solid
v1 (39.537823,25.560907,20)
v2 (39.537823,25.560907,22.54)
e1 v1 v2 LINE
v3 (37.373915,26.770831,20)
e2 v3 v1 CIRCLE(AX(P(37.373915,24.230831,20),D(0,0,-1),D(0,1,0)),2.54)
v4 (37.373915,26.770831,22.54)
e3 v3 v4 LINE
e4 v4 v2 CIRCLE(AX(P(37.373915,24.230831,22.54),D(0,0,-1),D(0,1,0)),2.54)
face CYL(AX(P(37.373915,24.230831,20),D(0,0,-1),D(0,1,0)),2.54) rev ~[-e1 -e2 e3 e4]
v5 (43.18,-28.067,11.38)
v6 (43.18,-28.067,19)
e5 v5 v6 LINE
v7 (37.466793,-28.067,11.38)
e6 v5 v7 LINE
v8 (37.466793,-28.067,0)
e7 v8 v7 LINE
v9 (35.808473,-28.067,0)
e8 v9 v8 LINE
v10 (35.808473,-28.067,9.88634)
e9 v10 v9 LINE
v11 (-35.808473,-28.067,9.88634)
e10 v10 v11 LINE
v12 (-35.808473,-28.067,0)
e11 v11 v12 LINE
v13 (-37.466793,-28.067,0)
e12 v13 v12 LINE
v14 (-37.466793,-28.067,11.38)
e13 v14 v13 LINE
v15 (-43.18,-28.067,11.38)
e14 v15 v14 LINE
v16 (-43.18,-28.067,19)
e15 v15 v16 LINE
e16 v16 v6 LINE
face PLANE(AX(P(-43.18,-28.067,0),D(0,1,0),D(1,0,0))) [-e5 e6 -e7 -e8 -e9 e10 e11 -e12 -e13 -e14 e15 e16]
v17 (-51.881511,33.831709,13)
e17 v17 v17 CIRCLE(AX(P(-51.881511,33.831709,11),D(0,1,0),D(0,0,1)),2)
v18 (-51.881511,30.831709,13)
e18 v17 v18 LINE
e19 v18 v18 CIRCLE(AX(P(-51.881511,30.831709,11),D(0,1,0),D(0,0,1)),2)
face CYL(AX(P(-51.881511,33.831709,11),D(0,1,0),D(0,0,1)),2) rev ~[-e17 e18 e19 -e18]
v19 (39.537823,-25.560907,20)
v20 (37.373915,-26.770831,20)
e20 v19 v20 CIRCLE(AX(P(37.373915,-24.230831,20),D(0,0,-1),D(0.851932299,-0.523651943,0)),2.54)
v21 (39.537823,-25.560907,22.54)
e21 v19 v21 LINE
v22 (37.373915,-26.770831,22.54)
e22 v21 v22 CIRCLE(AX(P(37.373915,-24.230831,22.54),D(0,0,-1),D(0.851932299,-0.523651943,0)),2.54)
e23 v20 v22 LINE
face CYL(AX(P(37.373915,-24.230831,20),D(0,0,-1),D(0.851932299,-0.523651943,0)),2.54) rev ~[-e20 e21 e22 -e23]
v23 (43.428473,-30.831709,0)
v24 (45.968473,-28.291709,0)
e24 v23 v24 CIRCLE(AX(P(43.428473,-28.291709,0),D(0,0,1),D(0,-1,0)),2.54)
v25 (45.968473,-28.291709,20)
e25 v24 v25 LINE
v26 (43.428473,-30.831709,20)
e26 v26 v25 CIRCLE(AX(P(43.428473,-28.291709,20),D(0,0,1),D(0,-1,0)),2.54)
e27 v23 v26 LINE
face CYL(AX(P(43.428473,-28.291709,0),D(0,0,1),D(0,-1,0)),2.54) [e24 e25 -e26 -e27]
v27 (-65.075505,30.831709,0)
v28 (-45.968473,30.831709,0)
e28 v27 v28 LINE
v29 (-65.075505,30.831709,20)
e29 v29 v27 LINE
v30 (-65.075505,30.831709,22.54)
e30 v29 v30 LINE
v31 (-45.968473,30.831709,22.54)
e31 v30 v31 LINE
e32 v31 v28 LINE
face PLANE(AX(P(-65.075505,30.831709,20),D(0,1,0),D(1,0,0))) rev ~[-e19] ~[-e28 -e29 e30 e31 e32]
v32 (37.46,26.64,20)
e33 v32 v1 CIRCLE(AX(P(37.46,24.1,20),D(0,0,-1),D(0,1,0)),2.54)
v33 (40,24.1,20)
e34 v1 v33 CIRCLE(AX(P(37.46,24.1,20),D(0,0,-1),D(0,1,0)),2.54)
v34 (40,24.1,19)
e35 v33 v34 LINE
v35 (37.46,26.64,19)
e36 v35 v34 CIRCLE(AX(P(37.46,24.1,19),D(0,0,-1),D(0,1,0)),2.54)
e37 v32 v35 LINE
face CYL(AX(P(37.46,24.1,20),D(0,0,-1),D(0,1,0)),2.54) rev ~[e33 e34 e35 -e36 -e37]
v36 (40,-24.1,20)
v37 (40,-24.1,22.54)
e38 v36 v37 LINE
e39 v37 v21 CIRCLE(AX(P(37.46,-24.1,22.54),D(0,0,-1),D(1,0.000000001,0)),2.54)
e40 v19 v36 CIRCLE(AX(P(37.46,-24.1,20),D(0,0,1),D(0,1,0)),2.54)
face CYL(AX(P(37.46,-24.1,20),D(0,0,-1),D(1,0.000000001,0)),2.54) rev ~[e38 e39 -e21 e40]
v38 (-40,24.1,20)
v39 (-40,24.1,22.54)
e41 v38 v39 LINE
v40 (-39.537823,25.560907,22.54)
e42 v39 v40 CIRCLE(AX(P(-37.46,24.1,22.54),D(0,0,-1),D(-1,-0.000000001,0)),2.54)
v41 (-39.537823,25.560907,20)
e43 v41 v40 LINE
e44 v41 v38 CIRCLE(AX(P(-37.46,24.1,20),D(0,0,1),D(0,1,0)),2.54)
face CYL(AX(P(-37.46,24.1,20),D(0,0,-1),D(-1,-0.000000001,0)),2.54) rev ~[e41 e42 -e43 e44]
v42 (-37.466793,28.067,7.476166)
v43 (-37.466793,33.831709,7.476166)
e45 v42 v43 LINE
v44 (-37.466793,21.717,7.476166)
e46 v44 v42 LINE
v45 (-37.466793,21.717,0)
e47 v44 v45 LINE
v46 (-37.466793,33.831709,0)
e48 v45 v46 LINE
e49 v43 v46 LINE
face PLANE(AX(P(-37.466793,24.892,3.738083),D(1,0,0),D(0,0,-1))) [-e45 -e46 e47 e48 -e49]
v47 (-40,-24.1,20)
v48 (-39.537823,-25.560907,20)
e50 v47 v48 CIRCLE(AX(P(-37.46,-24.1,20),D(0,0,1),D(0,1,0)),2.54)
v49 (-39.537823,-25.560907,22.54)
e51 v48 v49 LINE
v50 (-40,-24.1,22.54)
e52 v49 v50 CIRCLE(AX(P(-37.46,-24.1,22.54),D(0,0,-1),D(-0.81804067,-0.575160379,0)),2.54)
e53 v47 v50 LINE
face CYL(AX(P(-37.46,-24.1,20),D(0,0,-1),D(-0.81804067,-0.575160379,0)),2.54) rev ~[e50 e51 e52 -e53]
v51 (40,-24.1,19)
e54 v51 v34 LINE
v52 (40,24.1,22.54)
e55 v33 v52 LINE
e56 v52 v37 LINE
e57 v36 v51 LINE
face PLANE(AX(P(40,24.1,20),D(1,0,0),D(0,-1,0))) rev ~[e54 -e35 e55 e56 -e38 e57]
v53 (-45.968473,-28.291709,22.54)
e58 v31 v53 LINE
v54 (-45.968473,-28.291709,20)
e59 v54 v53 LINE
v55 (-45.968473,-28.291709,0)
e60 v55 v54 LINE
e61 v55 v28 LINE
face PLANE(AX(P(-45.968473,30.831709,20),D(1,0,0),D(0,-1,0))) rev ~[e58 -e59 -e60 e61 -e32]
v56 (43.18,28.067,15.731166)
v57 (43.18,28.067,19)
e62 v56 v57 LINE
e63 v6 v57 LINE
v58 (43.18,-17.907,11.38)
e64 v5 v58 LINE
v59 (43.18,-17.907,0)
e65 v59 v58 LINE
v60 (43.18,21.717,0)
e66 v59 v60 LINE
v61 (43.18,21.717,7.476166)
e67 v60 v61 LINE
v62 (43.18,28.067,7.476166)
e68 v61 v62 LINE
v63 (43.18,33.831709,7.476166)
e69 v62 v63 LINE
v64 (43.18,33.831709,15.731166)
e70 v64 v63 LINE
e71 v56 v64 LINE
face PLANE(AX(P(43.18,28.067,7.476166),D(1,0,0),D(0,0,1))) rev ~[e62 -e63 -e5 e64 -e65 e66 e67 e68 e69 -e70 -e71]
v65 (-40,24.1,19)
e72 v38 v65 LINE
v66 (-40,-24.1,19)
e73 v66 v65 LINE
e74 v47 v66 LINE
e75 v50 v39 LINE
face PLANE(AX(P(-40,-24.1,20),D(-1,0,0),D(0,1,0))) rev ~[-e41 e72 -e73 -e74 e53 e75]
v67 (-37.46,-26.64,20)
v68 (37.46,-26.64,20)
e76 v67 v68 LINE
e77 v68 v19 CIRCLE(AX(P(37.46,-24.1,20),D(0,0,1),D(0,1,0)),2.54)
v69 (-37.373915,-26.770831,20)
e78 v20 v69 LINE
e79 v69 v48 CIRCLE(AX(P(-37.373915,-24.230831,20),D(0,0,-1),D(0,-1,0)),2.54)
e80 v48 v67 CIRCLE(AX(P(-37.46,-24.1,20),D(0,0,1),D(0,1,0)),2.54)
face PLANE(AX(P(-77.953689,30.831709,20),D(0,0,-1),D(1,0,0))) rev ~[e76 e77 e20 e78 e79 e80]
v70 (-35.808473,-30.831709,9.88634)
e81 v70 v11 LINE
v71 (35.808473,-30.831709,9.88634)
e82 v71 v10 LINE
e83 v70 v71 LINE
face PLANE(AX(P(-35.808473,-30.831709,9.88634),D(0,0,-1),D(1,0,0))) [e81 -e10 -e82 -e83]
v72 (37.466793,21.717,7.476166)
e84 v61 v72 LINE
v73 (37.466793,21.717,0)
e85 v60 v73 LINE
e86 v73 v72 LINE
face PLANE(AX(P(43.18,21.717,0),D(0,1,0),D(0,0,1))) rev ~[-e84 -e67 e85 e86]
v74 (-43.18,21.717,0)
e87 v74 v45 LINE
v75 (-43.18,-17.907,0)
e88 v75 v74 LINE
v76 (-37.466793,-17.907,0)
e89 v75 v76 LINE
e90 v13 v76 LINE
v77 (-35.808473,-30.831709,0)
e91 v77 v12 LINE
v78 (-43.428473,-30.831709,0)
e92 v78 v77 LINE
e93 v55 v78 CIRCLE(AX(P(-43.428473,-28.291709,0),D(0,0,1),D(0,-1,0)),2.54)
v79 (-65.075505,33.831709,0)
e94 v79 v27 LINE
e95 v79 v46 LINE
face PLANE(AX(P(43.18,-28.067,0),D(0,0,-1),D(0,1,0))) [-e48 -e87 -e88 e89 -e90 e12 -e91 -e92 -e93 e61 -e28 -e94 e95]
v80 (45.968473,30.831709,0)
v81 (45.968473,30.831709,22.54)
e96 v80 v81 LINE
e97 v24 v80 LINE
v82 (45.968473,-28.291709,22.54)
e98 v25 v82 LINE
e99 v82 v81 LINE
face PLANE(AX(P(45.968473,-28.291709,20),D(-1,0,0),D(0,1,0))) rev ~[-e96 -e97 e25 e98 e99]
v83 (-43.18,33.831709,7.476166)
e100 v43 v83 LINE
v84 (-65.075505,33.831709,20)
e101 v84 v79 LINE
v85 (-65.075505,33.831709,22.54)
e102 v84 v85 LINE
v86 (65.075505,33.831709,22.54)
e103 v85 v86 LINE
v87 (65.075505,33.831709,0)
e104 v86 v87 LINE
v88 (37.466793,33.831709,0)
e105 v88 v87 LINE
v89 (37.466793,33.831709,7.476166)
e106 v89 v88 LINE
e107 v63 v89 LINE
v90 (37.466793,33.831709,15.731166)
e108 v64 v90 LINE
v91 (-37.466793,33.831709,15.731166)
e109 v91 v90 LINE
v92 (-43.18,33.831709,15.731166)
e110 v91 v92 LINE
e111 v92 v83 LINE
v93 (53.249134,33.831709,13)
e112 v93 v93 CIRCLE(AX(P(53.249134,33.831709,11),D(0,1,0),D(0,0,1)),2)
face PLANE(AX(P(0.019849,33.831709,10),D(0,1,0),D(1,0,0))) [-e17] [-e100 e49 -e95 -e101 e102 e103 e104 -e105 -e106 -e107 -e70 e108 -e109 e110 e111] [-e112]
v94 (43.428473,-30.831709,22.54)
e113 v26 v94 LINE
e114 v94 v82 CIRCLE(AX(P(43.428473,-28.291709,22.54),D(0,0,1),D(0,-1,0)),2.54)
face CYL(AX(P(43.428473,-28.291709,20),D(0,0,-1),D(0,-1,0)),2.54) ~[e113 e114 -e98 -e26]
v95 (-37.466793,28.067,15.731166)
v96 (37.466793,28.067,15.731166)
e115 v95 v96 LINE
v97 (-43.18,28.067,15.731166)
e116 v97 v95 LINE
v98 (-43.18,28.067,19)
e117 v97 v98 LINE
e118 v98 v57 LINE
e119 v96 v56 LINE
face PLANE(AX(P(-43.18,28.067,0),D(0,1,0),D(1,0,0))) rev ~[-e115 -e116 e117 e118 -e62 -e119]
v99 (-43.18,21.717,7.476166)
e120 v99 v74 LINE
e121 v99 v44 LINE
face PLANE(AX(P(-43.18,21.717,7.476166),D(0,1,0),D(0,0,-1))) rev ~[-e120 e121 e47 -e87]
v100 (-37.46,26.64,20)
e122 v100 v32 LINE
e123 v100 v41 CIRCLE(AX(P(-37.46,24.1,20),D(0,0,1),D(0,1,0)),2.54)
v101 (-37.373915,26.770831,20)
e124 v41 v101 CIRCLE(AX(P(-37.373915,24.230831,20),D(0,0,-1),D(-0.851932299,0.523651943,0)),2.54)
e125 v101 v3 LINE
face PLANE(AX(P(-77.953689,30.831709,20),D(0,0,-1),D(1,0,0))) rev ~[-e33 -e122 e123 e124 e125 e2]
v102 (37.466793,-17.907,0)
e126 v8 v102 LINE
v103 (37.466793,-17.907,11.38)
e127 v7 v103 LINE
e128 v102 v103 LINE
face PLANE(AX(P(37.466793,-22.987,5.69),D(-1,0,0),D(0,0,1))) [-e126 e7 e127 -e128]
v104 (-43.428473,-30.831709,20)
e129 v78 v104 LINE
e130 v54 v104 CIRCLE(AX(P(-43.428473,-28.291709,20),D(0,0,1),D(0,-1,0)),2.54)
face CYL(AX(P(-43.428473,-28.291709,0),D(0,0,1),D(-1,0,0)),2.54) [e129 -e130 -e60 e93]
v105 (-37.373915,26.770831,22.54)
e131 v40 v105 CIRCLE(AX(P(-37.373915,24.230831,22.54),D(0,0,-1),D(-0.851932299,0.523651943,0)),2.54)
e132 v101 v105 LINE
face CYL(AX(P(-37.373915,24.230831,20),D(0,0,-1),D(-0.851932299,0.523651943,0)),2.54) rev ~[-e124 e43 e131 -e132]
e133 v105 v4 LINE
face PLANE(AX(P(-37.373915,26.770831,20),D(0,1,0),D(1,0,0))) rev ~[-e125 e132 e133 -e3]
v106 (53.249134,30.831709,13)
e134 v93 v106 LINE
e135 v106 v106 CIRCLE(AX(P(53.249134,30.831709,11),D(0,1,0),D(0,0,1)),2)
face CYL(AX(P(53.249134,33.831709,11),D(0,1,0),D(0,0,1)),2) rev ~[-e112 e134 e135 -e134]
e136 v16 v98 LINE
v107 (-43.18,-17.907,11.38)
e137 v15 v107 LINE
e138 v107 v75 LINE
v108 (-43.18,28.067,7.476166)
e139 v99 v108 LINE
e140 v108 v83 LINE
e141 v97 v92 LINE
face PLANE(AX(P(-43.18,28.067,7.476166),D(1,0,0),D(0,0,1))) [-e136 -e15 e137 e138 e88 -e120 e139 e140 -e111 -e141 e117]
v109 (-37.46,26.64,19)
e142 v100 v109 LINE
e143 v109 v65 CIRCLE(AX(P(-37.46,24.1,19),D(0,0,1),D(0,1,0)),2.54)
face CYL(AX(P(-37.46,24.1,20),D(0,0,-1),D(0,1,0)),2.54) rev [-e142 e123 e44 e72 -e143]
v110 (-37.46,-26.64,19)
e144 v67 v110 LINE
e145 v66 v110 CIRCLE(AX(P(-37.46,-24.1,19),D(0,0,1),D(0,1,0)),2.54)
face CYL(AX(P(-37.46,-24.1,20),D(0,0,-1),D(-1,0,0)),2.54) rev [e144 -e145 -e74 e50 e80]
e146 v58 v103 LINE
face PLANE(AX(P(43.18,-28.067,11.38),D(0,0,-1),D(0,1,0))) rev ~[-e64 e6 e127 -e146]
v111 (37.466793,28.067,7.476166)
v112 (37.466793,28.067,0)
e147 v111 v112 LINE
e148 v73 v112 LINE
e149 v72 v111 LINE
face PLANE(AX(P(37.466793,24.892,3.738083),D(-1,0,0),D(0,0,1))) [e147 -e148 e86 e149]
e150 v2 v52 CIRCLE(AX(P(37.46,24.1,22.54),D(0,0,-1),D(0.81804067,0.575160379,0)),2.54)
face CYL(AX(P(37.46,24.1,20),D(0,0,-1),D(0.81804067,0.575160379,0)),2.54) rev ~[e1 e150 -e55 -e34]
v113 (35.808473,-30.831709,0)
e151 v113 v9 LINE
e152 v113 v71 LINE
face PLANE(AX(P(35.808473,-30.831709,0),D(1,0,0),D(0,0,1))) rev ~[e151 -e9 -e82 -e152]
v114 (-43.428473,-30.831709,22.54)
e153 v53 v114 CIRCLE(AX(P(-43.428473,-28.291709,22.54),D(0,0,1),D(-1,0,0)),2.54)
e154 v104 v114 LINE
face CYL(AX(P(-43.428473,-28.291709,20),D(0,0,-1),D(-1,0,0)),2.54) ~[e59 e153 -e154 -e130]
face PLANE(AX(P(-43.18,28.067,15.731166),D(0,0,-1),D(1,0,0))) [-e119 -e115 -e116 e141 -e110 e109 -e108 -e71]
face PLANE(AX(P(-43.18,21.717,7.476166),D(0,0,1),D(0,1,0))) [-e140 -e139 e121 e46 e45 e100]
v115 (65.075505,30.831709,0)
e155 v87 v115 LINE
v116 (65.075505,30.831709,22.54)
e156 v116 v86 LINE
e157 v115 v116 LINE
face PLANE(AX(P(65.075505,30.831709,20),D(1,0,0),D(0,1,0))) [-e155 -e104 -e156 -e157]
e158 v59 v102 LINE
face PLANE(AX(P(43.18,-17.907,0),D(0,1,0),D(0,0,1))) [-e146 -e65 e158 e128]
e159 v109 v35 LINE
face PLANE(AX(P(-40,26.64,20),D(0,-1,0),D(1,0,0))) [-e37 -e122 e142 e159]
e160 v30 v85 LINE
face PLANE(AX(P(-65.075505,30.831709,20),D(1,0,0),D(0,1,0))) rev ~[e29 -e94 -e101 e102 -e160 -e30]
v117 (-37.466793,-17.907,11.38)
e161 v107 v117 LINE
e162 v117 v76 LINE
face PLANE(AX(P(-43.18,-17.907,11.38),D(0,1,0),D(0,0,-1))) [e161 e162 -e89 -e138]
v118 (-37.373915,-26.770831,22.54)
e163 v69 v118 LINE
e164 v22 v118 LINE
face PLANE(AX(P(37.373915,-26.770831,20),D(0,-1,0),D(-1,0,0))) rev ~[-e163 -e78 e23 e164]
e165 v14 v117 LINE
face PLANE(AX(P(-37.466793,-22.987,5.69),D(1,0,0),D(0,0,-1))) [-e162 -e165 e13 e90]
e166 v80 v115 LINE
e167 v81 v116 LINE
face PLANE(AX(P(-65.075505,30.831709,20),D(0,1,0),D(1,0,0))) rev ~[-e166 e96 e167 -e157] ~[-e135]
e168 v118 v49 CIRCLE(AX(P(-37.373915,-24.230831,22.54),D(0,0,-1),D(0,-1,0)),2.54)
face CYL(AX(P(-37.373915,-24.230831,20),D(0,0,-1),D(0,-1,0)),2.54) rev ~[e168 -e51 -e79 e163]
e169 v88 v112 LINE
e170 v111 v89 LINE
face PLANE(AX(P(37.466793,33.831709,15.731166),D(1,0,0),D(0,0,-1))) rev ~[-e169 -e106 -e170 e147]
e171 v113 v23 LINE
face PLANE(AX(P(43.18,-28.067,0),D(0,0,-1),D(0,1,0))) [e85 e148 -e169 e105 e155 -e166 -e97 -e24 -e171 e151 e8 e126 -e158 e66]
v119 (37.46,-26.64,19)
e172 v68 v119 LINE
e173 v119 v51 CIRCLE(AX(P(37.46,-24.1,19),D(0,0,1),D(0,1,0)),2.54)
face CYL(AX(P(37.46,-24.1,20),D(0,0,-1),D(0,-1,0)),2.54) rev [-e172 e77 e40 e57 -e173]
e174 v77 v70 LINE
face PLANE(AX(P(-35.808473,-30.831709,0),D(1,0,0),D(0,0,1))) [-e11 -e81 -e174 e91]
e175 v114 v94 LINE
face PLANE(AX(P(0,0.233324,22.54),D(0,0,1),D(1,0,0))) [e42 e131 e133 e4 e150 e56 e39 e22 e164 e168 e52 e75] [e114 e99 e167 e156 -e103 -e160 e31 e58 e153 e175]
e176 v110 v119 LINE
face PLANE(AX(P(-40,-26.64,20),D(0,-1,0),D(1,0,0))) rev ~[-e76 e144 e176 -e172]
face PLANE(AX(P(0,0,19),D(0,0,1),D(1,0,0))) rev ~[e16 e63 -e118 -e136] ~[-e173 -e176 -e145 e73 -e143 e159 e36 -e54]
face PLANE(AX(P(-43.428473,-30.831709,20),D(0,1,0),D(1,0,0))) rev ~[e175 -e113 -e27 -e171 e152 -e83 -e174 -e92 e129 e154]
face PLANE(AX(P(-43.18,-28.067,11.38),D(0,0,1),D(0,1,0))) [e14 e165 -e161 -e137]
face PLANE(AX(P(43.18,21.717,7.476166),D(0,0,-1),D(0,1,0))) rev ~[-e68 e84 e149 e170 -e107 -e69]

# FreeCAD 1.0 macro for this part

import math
import FreeCAD as App
import Part
import Sketcher
Q = App.Units.Quantity


def edges_at(feature, points):
    """Names of the edges that pass closest to the given points."""
    edges = feature.Shape.Edges
    near = lambda p: min(range(len(edges)), key=lambda i: edges[i].distToShape(Part.Vertex(*p))[0])
    return sorted({f"Edge{near(p) + 1}" for p in points})


def add_polygon(sketch, points):
    """Adds a closed chain of lines whose ends are joined by coincident constraints."""
    first, n = sketch.GeometryCount, len(points)
    for a, b in zip(points, points[1:] + points[:1]):
        sketch.addGeometry(Part.LineSegment(App.Vector(*a, 0), App.Vector(*b, 0)), False)
    for i in range(n):
        sketch.addConstraint(Sketcher.Constraint("Coincident", first + i, 2, first + (i + 1) % n, 1))

doc = App.newDocument("Part")
body = doc.addObject("PartDesign::Body", "Body")

# Sketch on XY plane
sketch1 = body.newObject("Sketcher::SketchObject", "Sketch")
sketch1.AttachmentSupport = (doc.getObject("XY_Plane"), [""])
sketch1.MapMode = "FlatFace"
add_polygon(sketch1, [(-46, 31), (-46, -31), (46, -31), (46, 31)])  # lines 0-3
add_polygon(sketch1, [(43, -28), (-43, -28), (-43, 28), (43, 28)])  # lines 4-7
sketch1.addConstraint(Sketcher.Constraint("Vertical", 0))
sketch1.addConstraint(Sketcher.Constraint("Horizontal", 1))
sketch1.addConstraint(Sketcher.Constraint("Vertical", 2))
sketch1.addConstraint(Sketcher.Constraint("Horizontal", 3))
sketch1.addConstraint(Sketcher.Constraint("Horizontal", 4))
sketch1.addConstraint(Sketcher.Constraint("Vertical", 5))
sketch1.addConstraint(Sketcher.Constraint("Horizontal", 6))
sketch1.addConstraint(Sketcher.Constraint("Vertical", 7))
sketch1.addConstraint(Sketcher.Constraint("Symmetric", 0, 2, 2, 2, -1, 1))
sketch1.addConstraint(Sketcher.Constraint("Symmetric", 4, 2, 6, 2, -1, 1))
sketch1.addConstraint(Sketcher.Constraint("DistanceX", 4, 2, 4, 1, Q("3.4 in")))
sketch1.addConstraint(Sketcher.Constraint("DistanceY", 5, 1, 5, 2, Q("2.21 in")))
sketch1.addConstraint(Sketcher.Constraint("DistanceY", 0, 2, 0, 1, 61.663419))
sketch1.addConstraint(Sketcher.Constraint("DistanceX", 1, 1, 1, 2, 91.936945))
pad1 = body.newObject("PartDesign::Pad", "Pad")
pad1.Profile = sketch1
pad1.Length = 20

# Sketch on XY plane
sketch2 = body.newObject("Sketcher::SketchObject", "Sketch001")
sketch2.AttachmentSupport = (doc.getObject("XY_Plane"), [""])
sketch2.MapMode = "FlatFace"
sketch2.AttachmentOffset = App.Placement(App.Vector(0, 0, 20), App.Rotation())
add_polygon(sketch2, [(-43, 28), (-43, -28), (43, -28), (43, 28)])  # lines 0-3
sketch2.addConstraint(Sketcher.Constraint("Vertical", 0))
sketch2.addConstraint(Sketcher.Constraint("Horizontal", 1))
sketch2.addConstraint(Sketcher.Constraint("Vertical", 2))
sketch2.addConstraint(Sketcher.Constraint("Horizontal", 3))
sketch2.addConstraint(Sketcher.Constraint("Symmetric", 0, 2, 2, 2, -1, 1))
sketch2.addConstraint(Sketcher.Constraint("DistanceX", 1, 1, 1, 2, Q("3.4 in")))
sketch2.addConstraint(Sketcher.Constraint("DistanceY", 0, 2, 0, 1, Q("2.21 in")))
pad2 = body.newObject("PartDesign::Pad", "Pad001")
pad2.Profile = sketch2
pad2.Length = 1
pad2.Reversed = True

# Sketch on XY plane
sketch3 = body.newObject("Sketcher::SketchObject", "Sketch002")
sketch3.AttachmentSupport = (doc.getObject("XY_Plane"), [""])
sketch3.MapMode = "FlatFace"
sketch3.AttachmentOffset = App.Placement(App.Vector(0, 0, 20), App.Rotation())
add_polygon(sketch3, [(-40, 27), (-40, -27), (40, -27), (40, 27)])  # lines 0-3
sketch3.addConstraint(Sketcher.Constraint("Vertical", 0))
sketch3.addConstraint(Sketcher.Constraint("Horizontal", 1))
sketch3.addConstraint(Sketcher.Constraint("Vertical", 2))
sketch3.addConstraint(Sketcher.Constraint("Horizontal", 3))
sketch3.addConstraint(Sketcher.Constraint("Symmetric", 0, 2, 2, 2, -1, 1))
sketch3.addConstraint(Sketcher.Constraint("DistanceX", 1, 1, 1, 2, 80.0))
sketch3.addConstraint(Sketcher.Constraint("DistanceY", 0, 2, 0, 1, 53.28))
pocket1 = body.newObject("PartDesign::Pocket", "Pocket")
pocket1.Profile = sketch3
pocket1.Type = "ThroughAll"

# Sketch on XZ plane
sketch4 = body.newObject("Sketcher::SketchObject", "Sketch003")
sketch4.AttachmentSupport = (doc.getObject("XZ_Plane"), [""])
sketch4.MapMode = "FlatFace"
sketch4.AttachmentOffset = App.Placement(App.Vector(0, 0, -30.831709), App.Rotation())
add_polygon(sketch4, [(-78, 0), (-78, 20), (78, 20), (78, 0)])  # lines 0-3
sketch4.addConstraint(Sketcher.Constraint("Vertical", 0))
sketch4.addConstraint(Sketcher.Constraint("Horizontal", 1))
sketch4.addConstraint(Sketcher.Constraint("Vertical", 2))
sketch4.addConstraint(Sketcher.Constraint("Horizontal", 3))
sketch4.addConstraint(Sketcher.Constraint("PointOnObject", 2, 2, -1))
sketch4.addConstraint(Sketcher.Constraint("DistanceY", 0, 1, 0, 2, 20.0))
sketch4.addConstraint(Sketcher.Constraint("DistanceX", 1, 1, 1, 2, 155.947076))
sketch4.addConstraint(Sketcher.Constraint("DistanceX", 0, 2, -1, 1, 77.953689))
pad3 = body.newObject("PartDesign::Pad", "Pad002")
pad3.Profile = sketch4
pad3.Length = 3
pad3.Reversed = True

# Sketch on XY plane
sketch5 = body.newObject("Sketcher::SketchObject", "Sketch004")
sketch5.AttachmentSupport = (doc.getObject("XY_Plane"), [""])
sketch5.MapMode = "FlatFace"
sketch5.AttachmentOffset = App.Placement(App.Vector(0, 0, 20), App.Rotation())
add_polygon(sketch5, [(65.1, 33.8), (65.1, 30.8), (78, 30.8), (78, 33.8)])  # lines 0-3
sketch5.addConstraint(Sketcher.Constraint("Vertical", 0))
sketch5.addConstraint(Sketcher.Constraint("Horizontal", 1))
sketch5.addConstraint(Sketcher.Constraint("Vertical", 2))
sketch5.addConstraint(Sketcher.Constraint("Horizontal", 3))
sketch5.addConstraint(Sketcher.Constraint("DistanceY", 0, 2, 0, 1, 3.0))
sketch5.addConstraint(Sketcher.Constraint("DistanceX", 1, 1, 1, 2, 12.917881))
sketch5.addConstraint(Sketcher.Constraint("DistanceY", -1, 1, 0, 2, 30.831709))
sketch5.addConstraint(Sketcher.Constraint("DistanceX", -1, 1, 0, 2, 65.075505))
pocket2 = body.newObject("PartDesign::Pocket", "Pocket001")
pocket2.Profile = sketch5
pocket2.Type = "ThroughAll"

# Sketch on XY plane
sketch6 = body.newObject("Sketcher::SketchObject", "Sketch005")
sketch6.AttachmentSupport = (doc.getObject("XY_Plane"), [""])
sketch6.MapMode = "FlatFace"
sketch6.AttachmentOffset = App.Placement(App.Vector(0, 0, 20), App.Rotation())
add_polygon(sketch6, [(-78, 33.8), (-78, 30.8), (-65.1, 30.8), (-65.1, 33.8)])  # lines 0-3
sketch6.addConstraint(Sketcher.Constraint("Vertical", 0))
sketch6.addConstraint(Sketcher.Constraint("Horizontal", 1))
sketch6.addConstraint(Sketcher.Constraint("Vertical", 2))
sketch6.addConstraint(Sketcher.Constraint("Horizontal", 3))
sketch6.addConstraint(Sketcher.Constraint("DistanceY", 0, 2, 0, 1, 3.0))
sketch6.addConstraint(Sketcher.Constraint("DistanceX", 1, 1, 1, 2, 12.878184))
sketch6.addConstraint(Sketcher.Constraint("DistanceX", 0, 2, -1, 1, 77.953689))
sketch6.addConstraint(Sketcher.Constraint("DistanceY", -1, 1, 0, 2, 30.831709))
pocket3 = body.newObject("PartDesign::Pocket", "Pocket002")
pocket3.Profile = sketch6
pocket3.Type = "ThroughAll"

# Sketch on XZ plane
sketch7 = body.newObject("Sketcher::SketchObject", "Sketch006")
sketch7.AttachmentSupport = (doc.getObject("XZ_Plane"), [""])
sketch7.MapMode = "FlatFace"
sketch7.AttachmentOffset = App.Placement(App.Vector(0, 0, -33.831709), App.Rotation())
sketch7.addGeometry(Part.Circle(App.Vector(53.2, 11, 0), App.Vector(0, 0, 1), 2), False)
sketch7.addConstraint(Sketcher.Constraint("Diameter", 0, 4.0))
sketch7.addConstraint(Sketcher.Constraint("DistanceY", -1, 1, 0, 3, 11.0))
sketch7.addConstraint(Sketcher.Constraint("DistanceX", -1, 1, 0, 3, 53.249134))
pocket4 = body.newObject("PartDesign::Pocket", "Pocket003")
pocket4.Profile = sketch7
pocket4.Type = "ThroughAll"
pocket4.Reversed = True

# Sketch on XZ plane
sketch8 = body.newObject("Sketcher::SketchObject", "Sketch007")
sketch8.AttachmentSupport = (doc.getObject("XZ_Plane"), [""])
sketch8.MapMode = "FlatFace"
sketch8.AttachmentOffset = App.Placement(App.Vector(0, 0, -33.831709), App.Rotation())
sketch8.addGeometry(Part.Circle(App.Vector(53.2, 11, 0), App.Vector(0, 0, 1), 2), False)
sketch8.addGeometry(Part.Circle(App.Vector(-51.9, 11, 0), App.Vector(0, 0, 1), 2), False)
sketch8.addConstraint(Sketcher.Constraint("Equal", 0, 1))
sketch8.addConstraint(Sketcher.Constraint("Horizontal", 0, 3, 1, 3))
sketch8.addConstraint(Sketcher.Constraint("Diameter", 0, 4.0))
sketch8.addConstraint(Sketcher.Constraint("DistanceY", -1, 1, 0, 3, 11.0))
sketch8.addConstraint(Sketcher.Constraint("DistanceX", 1, 3, -1, 1, 51.881511))
sketch8.addConstraint(Sketcher.Constraint("DistanceX", -1, 1, 0, 3, 53.249134))
pocket5 = body.newObject("PartDesign::Pocket", "Pocket004")
pocket5.Profile = sketch8
pocket5.Type = "ThroughAll"
pocket5.Reversed = True

# Sketch on XZ plane
sketch9 = body.newObject("Sketcher::SketchObject", "Sketch008")
sketch9.AttachmentSupport = (doc.getObject("XZ_Plane"), [""])
sketch9.MapMode = "FlatFace"
sketch9.AttachmentOffset = App.Placement(App.Vector(0, 0, -33.831709), App.Rotation())
add_polygon(sketch9, [(-37, 0), (-37, 16), (37, 16), (37, 0)])  # lines 0-3
sketch9.addConstraint(Sketcher.Constraint("Vertical", 0))
sketch9.addConstraint(Sketcher.Constraint("Horizontal", 1))
sketch9.addConstraint(Sketcher.Constraint("Vertical", 2))
sketch9.addConstraint(Sketcher.Constraint("Horizontal", 3))
sketch9.addConstraint(Sketcher.Constraint("Symmetric", 2, 2, 3, 2, -1, 1))
sketch9.addConstraint(Sketcher.Constraint("DistanceX", 1, 1, 1, 2, 74.933585))
sketch9.addConstraint(Sketcher.Constraint("DistanceY", 0, 1, 0, 2, 15.731166))
pocket6 = body.newObject("PartDesign::Pocket", "Pocket005")
pocket6.Profile = sketch9
pocket6.Length = 20
pocket6.Reversed = True
doc.recompute()

fillet = body.newObject("PartDesign::Fillet", "Fillet")
fillet.Base = (pocket6, edges_at(pocket6, [(40, 26.64, 19.5)]))
fillet.Radius = Q("0.1 in")
doc.recompute()

fillet2 = body.newObject("PartDesign::Fillet", "Fillet001")
fillet2.Base = (fillet, edges_at(fillet, [(-40, 26.64, 19.5)]))
fillet2.Radius = Q("0.1 in")
doc.recompute()

fillet3 = body.newObject("PartDesign::Fillet", "Fillet002")
fillet3.Base = (fillet2, edges_at(fillet2, [(-40, -26.64, 19.5)]))
fillet3.Radius = Q("0.1 in")
doc.recompute()

fillet4 = body.newObject("PartDesign::Fillet", "Fillet003")
fillet4.Base = (fillet3, edges_at(fillet3, [(40, -26.64, 19.5)]))
fillet4.Radius = Q("0.1 in")
doc.recompute()

fillet5 = body.newObject("PartDesign::Fillet", "Fillet004")
fillet5.Base = (fillet4, edges_at(fillet4, [(-45.968, -30.832, 10)]))
fillet5.Radius = Q("0.1 in")
doc.recompute()

fillet6 = body.newObject("PartDesign::Fillet", "Fillet005")
fillet6.Base = (fillet5, edges_at(fillet5, [(45.968, -30.832, 10)]))
fillet6.Radius = Q("0.1 in")

# Sketch on XZ plane
sketch10 = body.newObject("Sketcher::SketchObject", "Sketch009")
sketch10.AttachmentSupport = (doc.getObject("XZ_Plane"), [""])
sketch10.MapMode = "FlatFace"
sketch10.AttachmentOffset = App.Placement(App.Vector(0, 0, -1.105 * 25.4), App.Rotation())
add_polygon(sketch10, [(37, 16), (37, 7), (43, 7), (43, 16)])  # lines 0-3
sketch10.addConstraint(Sketcher.Constraint("Vertical", 0))
sketch10.addConstraint(Sketcher.Constraint("Horizontal", 1))
sketch10.addConstraint(Sketcher.Constraint("Vertical", 2))
sketch10.addConstraint(Sketcher.Constraint("Horizontal", 3))
sketch10.addConstraint(Sketcher.Constraint("DistanceX", -1, 1, 1, 2, Q("1.7 in")))
sketch10.addConstraint(Sketcher.Constraint("DistanceY", 0, 2, 0, 1, Q("0.325 in")))
sketch10.addConstraint(Sketcher.Constraint("DistanceX", 1, 1, 1, 2, 5.713207))
sketch10.addConstraint(Sketcher.Constraint("DistanceY", -1, 1, 0, 2, 7.476166))
pocket7 = body.newObject("PartDesign::Pocket", "Pocket006")
pocket7.Profile = sketch10
pocket7.Type = "ThroughAll"

# Sketch on XZ plane
sketch11 = body.newObject("Sketcher::SketchObject", "Sketch010")
sketch11.AttachmentSupport = (doc.getObject("XZ_Plane"), [""])
sketch11.MapMode = "FlatFace"
sketch11.AttachmentOffset = App.Placement(App.Vector(0, 0, -1.105 * 25.4), App.Rotation())
add_polygon(sketch11, [(-43, 16), (-43, 7), (-37, 7), (-37, 16)])  # lines 0-3
sketch11.addConstraint(Sketcher.Constraint("Vertical", 0))
sketch11.addConstraint(Sketcher.Constraint("Horizontal", 1))
sketch11.addConstraint(Sketcher.Constraint("Vertical", 2))
sketch11.addConstraint(Sketcher.Constraint("Horizontal", 3))
sketch11.addConstraint(Sketcher.Constraint("DistanceX", 0, 2, -1, 1, Q("1.7 in")))
sketch11.addConstraint(Sketcher.Constraint("DistanceY", 0, 2, 0, 1, Q("0.325 in")))
sketch11.addConstraint(Sketcher.Constraint("DistanceX", 1, 1, 1, 2, 5.713207))
sketch11.addConstraint(Sketcher.Constraint("DistanceY", -1, 1, 0, 2, 7.476166))
pocket8 = body.newObject("PartDesign::Pocket", "Pocket007")
pocket8.Profile = sketch11
pocket8.Type = "ThroughAll"

# Sketch on YZ plane
sketch12 = body.newObject("Sketcher::SketchObject", "Sketch011")
sketch12.AttachmentSupport = (doc.getObject("YZ_Plane"), [""])
sketch12.MapMode = "FlatFace"
sketch12.AttachmentOffset = App.Placement(App.Vector(0, 0, 1.7 * 25.4), App.Rotation())
add_polygon(sketch12, [(28, 0), (22, 0), (22, 7), (28, 7)])  # lines 0-3
sketch12.addConstraint(Sketcher.Constraint("Horizontal", 0))
sketch12.addConstraint(Sketcher.Constraint("Vertical", 1))
sketch12.addConstraint(Sketcher.Constraint("Horizontal", 2))
sketch12.addConstraint(Sketcher.Constraint("Vertical", 3))
sketch12.addConstraint(Sketcher.Constraint("PointOnObject", 0, 2, -1))
sketch12.addConstraint(Sketcher.Constraint("DistanceX", 0, 2, 0, 1, Q("0.25 in")))
sketch12.addConstraint(Sketcher.Constraint("DistanceX", -1, 1, 0, 2, Q("0.855 in")))
sketch12.addConstraint(Sketcher.Constraint("DistanceY", 1, 1, 1, 2, 7.476166))
pad4 = body.newObject("PartDesign::Pad", "Pad003")
pad4.Profile = sketch12
pad4.Length = 5.713207
pad4.Reversed = True

# Sketch on YZ plane
sketch13 = body.newObject("Sketcher::SketchObject", "Sketch012")
sketch13.AttachmentSupport = (doc.getObject("YZ_Plane"), [""])
sketch13.MapMode = "FlatFace"
sketch13.AttachmentOffset = App.Placement(App.Vector(0, 0, -1.7 * 25.4), App.Rotation())
add_polygon(sketch13, [(28, 7), (22, 7), (22, 0), (28, 0)])  # lines 0-3
sketch13.addConstraint(Sketcher.Constraint("Horizontal", 0))
sketch13.addConstraint(Sketcher.Constraint("Vertical", 1))
sketch13.addConstraint(Sketcher.Constraint("Horizontal", 2))
sketch13.addConstraint(Sketcher.Constraint("Vertical", 3))
sketch13.addConstraint(Sketcher.Constraint("PointOnObject", 1, 2, -1))
sketch13.addConstraint(Sketcher.Constraint("DistanceX", 0, 2, 0, 1, Q("0.25 in")))
sketch13.addConstraint(Sketcher.Constraint("DistanceX", -1, 1, 0, 2, Q("0.855 in")))
sketch13.addConstraint(Sketcher.Constraint("DistanceY", 1, 2, 1, 1, 7.476166))
pad5 = body.newObject("PartDesign::Pad", "Pad004")
pad5.Profile = sketch13
pad5.Length = 5.713207

# Sketch on YZ plane
sketch14 = body.newObject("Sketcher::SketchObject", "Sketch013")
sketch14.AttachmentSupport = (doc.getObject("YZ_Plane"), [""])
sketch14.MapMode = "FlatFace"
sketch14.AttachmentOffset = App.Placement(App.Vector(0, 0, -1.7 * 25.4), App.Rotation())
add_polygon(sketch14, [(-18, 11), (-28, 11), (-28, 0), (-18, 0)])  # lines 0-3
sketch14.addConstraint(Sketcher.Constraint("Horizontal", 0))
sketch14.addConstraint(Sketcher.Constraint("Vertical", 1))
sketch14.addConstraint(Sketcher.Constraint("Horizontal", 2))
sketch14.addConstraint(Sketcher.Constraint("Vertical", 3))
sketch14.addConstraint(Sketcher.Constraint("PointOnObject", 1, 2, -1))
sketch14.addConstraint(Sketcher.Constraint("DistanceX", 0, 2, 0, 1, Q("0.4 in")))
sketch14.addConstraint(Sketcher.Constraint("DistanceX", 0, 2, -1, 1, Q("1.105 in")))
sketch14.addConstraint(Sketcher.Constraint("DistanceY", 1, 2, 1, 1, 11.38))
pad6 = body.newObject("PartDesign::Pad", "Pad005")
pad6.Profile = sketch14
pad6.Length = 5.713207

# Sketch on YZ plane
sketch15 = body.newObject("Sketcher::SketchObject", "Sketch014")
sketch15.AttachmentSupport = (doc.getObject("YZ_Plane"), [""])
sketch15.MapMode = "FlatFace"
sketch15.AttachmentOffset = App.Placement(App.Vector(0, 0, 1.7 * 25.4), App.Rotation())
add_polygon(sketch15, [(-18, 0), (-28, 0), (-28, 11), (-18, 11)])  # lines 0-3
sketch15.addConstraint(Sketcher.Constraint("Horizontal", 0))
sketch15.addConstraint(Sketcher.Constraint("Vertical", 1))
sketch15.addConstraint(Sketcher.Constraint("Horizontal", 2))
sketch15.addConstraint(Sketcher.Constraint("Vertical", 3))
sketch15.addConstraint(Sketcher.Constraint("PointOnObject", 0, 2, -1))
sketch15.addConstraint(Sketcher.Constraint("DistanceX", 0, 2, 0, 1, Q("0.4 in")))
sketch15.addConstraint(Sketcher.Constraint("DistanceX", 0, 2, -1, 1, Q("1.105 in")))
sketch15.addConstraint(Sketcher.Constraint("DistanceY", 1, 1, 1, 2, 11.38))
pad7 = body.newObject("PartDesign::Pad", "Pad006")
pad7.Profile = sketch15
pad7.Length = 5.713207
pad7.Reversed = True

# Sketch on XZ plane
sketch16 = body.newObject("Sketcher::SketchObject", "Sketch015")
sketch16.AttachmentSupport = (doc.getObject("XZ_Plane"), [""])
sketch16.MapMode = "FlatFace"
sketch16.AttachmentOffset = App.Placement(App.Vector(0, 0, 30.831709), App.Rotation())
add_polygon(sketch16, [(-36, 10), (-36, 0), (36, 0), (36, 10)])  # lines 0-3
sketch16.addConstraint(Sketcher.Constraint("Vertical", 0))
sketch16.addConstraint(Sketcher.Constraint("Horizontal", 1))
sketch16.addConstraint(Sketcher.Constraint("Vertical", 2))
sketch16.addConstraint(Sketcher.Constraint("Horizontal", 3))
sketch16.addConstraint(Sketcher.Constraint("Symmetric", 0, 2, 1, 2, -1, 1))
sketch16.addConstraint(Sketcher.Constraint("DistanceY", 0, 2, 0, 1, 9.88634))
sketch16.addConstraint(Sketcher.Constraint("DistanceX", 1, 1, 1, 2, 71.616945))
pocket9 = body.newObject("PartDesign::Pocket", "Pocket008")
pocket9.Profile = sketch16
pocket9.Type = "ThroughAll"

# Sketch on XY plane
sketch17 = body.newObject("Sketcher::SketchObject", "Sketch016")
sketch17.AttachmentSupport = (doc.getObject("XY_Plane"), [""])
sketch17.MapMode = "FlatFace"
sketch17.AttachmentOffset = App.Placement(App.Vector(0, 0, 20), App.Rotation())
sketch17.addGeometry(Part.LineSegment(App.Vector(-43.4, -30.8, 0), App.Vector(43.4, -30.8, 0)), False)
sketch17.addGeometry(Part.ArcOfCircle(Part.Circle(App.Vector(43.4, -28.3, 0), App.Vector(0, 0, 1), 2.5), math.radians(-90), math.radians(0)), False)
sketch17.addGeometry(Part.LineSegment(App.Vector(46, -28.3, 0), App.Vector(46, 30.8, 0)), False)
sketch17.addGeometry(Part.LineSegment(App.Vector(46, 30.8, 0), App.Vector(65.1, 30.8, 0)), False)
sketch17.addGeometry(Part.LineSegment(App.Vector(65.1, 30.8, 0), App.Vector(65.1, 33.8, 0)), False)
sketch17.addGeometry(Part.LineSegment(App.Vector(65.1, 33.8, 0), App.Vector(-65.1, 33.8, 0)), False)
sketch17.addGeometry(Part.LineSegment(App.Vector(-65.1, 33.8, 0), App.Vector(-65.1, 30.8, 0)), False)
sketch17.addGeometry(Part.LineSegment(App.Vector(-65.1, 30.8, 0), App.Vector(-46, 30.8, 0)), False)
sketch17.addGeometry(Part.LineSegment(App.Vector(-46, 30.8, 0), App.Vector(-46, -28.3, 0)), False)
sketch17.addGeometry(Part.ArcOfCircle(Part.Circle(App.Vector(-43.4, -28.3, 0), App.Vector(0, 0, 1), 2.5), math.radians(-180), math.radians(-90)), False)
sketch17.addGeometry(Part.ArcOfCircle(Part.Circle(App.Vector(37.5, -24.1, 0), App.Vector(0, 0, 1), 2.5), math.radians(-35), math.radians(0)), False)
sketch17.addGeometry(Part.ArcOfCircle(Part.Circle(App.Vector(37.4, -24.2, 0), App.Vector(0, 0, 1), 2.5), math.radians(-90), math.radians(-32)), False)
sketch17.addGeometry(Part.LineSegment(App.Vector(37.4, -26.8, 0), App.Vector(-37.4, -26.8, 0)), False)
sketch17.addGeometry(Part.ArcOfCircle(Part.Circle(App.Vector(-37.4, -24.2, 0), App.Vector(0, 0, 1), 2.5), math.radians(-148), math.radians(-90)), False)
sketch17.addGeometry(Part.ArcOfCircle(Part.Circle(App.Vector(-37.5, -24.1, 0), App.Vector(0, 0, 1), 2.5), math.radians(180), math.radians(215)), False)
sketch17.addGeometry(Part.LineSegment(App.Vector(-40, -24.1, 0), App.Vector(-40, 24.1, 0)), False)
sketch17.addGeometry(Part.ArcOfCircle(Part.Circle(App.Vector(-37.5, 24.1, 0), App.Vector(0, 0, 1), 2.5), math.radians(145), math.radians(180)), False)
sketch17.addGeometry(Part.ArcOfCircle(Part.Circle(App.Vector(-37.4, 24.2, 0), App.Vector(0, 0, 1), 2.5), math.radians(90), math.radians(148)), False)
sketch17.addGeometry(Part.LineSegment(App.Vector(-37.4, 26.8, 0), App.Vector(37.4, 26.8, 0)), False)
sketch17.addGeometry(Part.ArcOfCircle(Part.Circle(App.Vector(37.4, 24.2, 0), App.Vector(0, 0, 1), 2.5), math.radians(32), math.radians(90)), False)
sketch17.addGeometry(Part.ArcOfCircle(Part.Circle(App.Vector(37.5, 24.1, 0), App.Vector(0, 0, 1), 2.5), math.radians(0), math.radians(35)), False)
sketch17.addGeometry(Part.LineSegment(App.Vector(40, 24.1, 0), App.Vector(40, -24.1, 0)), False)
sketch17.addConstraint(Sketcher.Constraint("Tangent", 0, 2, 1, 1))
sketch17.addConstraint(Sketcher.Constraint("Tangent", 1, 2, 2, 1))
sketch17.addConstraint(Sketcher.Constraint("Coincident", 2, 2, 3, 1))
sketch17.addConstraint(Sketcher.Constraint("Coincident", 3, 2, 4, 1))
sketch17.addConstraint(Sketcher.Constraint("Coincident", 4, 2, 5, 1))
sketch17.addConstraint(Sketcher.Constraint("Coincident", 5, 2, 6, 1))
sketch17.addConstraint(Sketcher.Constraint("Coincident", 6, 2, 7, 1))
sketch17.addConstraint(Sketcher.Constraint("Coincident", 7, 2, 8, 1))
sketch17.addConstraint(Sketcher.Constraint("Tangent", 8, 2, 9, 1))
sketch17.addConstraint(Sketcher.Constraint("Tangent", 9, 2, 0, 1))
sketch17.addConstraint(Sketcher.Constraint("Coincident", 10, 1, 11, 2))
sketch17.addConstraint(Sketcher.Constraint("Tangent", 11, 1, 12, 1))
sketch17.addConstraint(Sketcher.Constraint("Tangent", 12, 2, 13, 2))
sketch17.addConstraint(Sketcher.Constraint("Coincident", 13, 1, 14, 2))
sketch17.addConstraint(Sketcher.Constraint("Tangent", 14, 1, 15, 1))
sketch17.addConstraint(Sketcher.Constraint("Tangent", 15, 2, 16, 2))
sketch17.addConstraint(Sketcher.Constraint("Coincident", 16, 1, 17, 2))
sketch17.addConstraint(Sketcher.Constraint("Tangent", 17, 1, 18, 1))
sketch17.addConstraint(Sketcher.Constraint("Tangent", 18, 2, 19, 2))
sketch17.addConstraint(Sketcher.Constraint("Coincident", 19, 1, 20, 2))
sketch17.addConstraint(Sketcher.Constraint("Tangent", 20, 1, 21, 1))
sketch17.addConstraint(Sketcher.Constraint("Tangent", 21, 2, 10, 2))
sketch17.addConstraint(Sketcher.Constraint("Horizontal", 0))
sketch17.addConstraint(Sketcher.Constraint("Vertical", 2))
sketch17.addConstraint(Sketcher.Constraint("Horizontal", 3))
sketch17.addConstraint(Sketcher.Constraint("Vertical", 4))
sketch17.addConstraint(Sketcher.Constraint("Horizontal", 5))
sketch17.addConstraint(Sketcher.Constraint("Vertical", 6))
sketch17.addConstraint(Sketcher.Constraint("Horizontal", 7))
sketch17.addConstraint(Sketcher.Constraint("Vertical", 8))
sketch17.addConstraint(Sketcher.Constraint("Horizontal", 12))
sketch17.addConstraint(Sketcher.Constraint("Vertical", 15))
sketch17.addConstraint(Sketcher.Constraint("Horizontal", 18))
sketch17.addConstraint(Sketcher.Constraint("Vertical", 21))
sketch17.addConstraint(Sketcher.Constraint("Equal", 1, 9))
sketch17.addConstraint(Sketcher.Constraint("Equal", 9, 10))
sketch17.addConstraint(Sketcher.Constraint("Equal", 10, 11))
sketch17.addConstraint(Sketcher.Constraint("Equal", 11, 13))
sketch17.addConstraint(Sketcher.Constraint("Equal", 13, 14))
sketch17.addConstraint(Sketcher.Constraint("Equal", 14, 16))
sketch17.addConstraint(Sketcher.Constraint("Equal", 16, 17))
sketch17.addConstraint(Sketcher.Constraint("Equal", 17, 19))
sketch17.addConstraint(Sketcher.Constraint("Equal", 19, 20))
sketch17.addConstraint(Sketcher.Constraint("Symmetric", 10, 3, 16, 3, -1, 1))
sketch17.addConstraint(Sketcher.Constraint("Symmetric", 11, 3, 17, 3, -1, 1))
sketch17.addConstraint(Sketcher.Constraint("Symmetric", 13, 1, 19, 1, -1, 1))
sketch17.addConstraint(Sketcher.Constraint("Symmetric", 3, 2, 6, 2, -2))
sketch17.addConstraint(Sketcher.Constraint("Symmetric", 10, 1, 13, 1, -2))
sketch17.addConstraint(Sketcher.Constraint("Equal", 3, 7))
sketch17.addConstraint(Sketcher.Constraint("Radius", 1, Q("0.1 in")))
sketch17.addConstraint(Sketcher.Constraint("DistanceY", 4, 1, 4, 2, 3.0))
sketch17.addConstraint(Sketcher.Constraint("DistanceY", 15, 1, 15, 2, 48.2))
sketch17.addConstraint(Sketcher.Constraint("DistanceX", 5, 2, 5, 1, 130.151011))
sketch17.addConstraint(Sketcher.Constraint("DistanceX", 12, 2, 12, 1, 74.747831))
sketch17.addConstraint(Sketcher.Constraint("DistanceY", 2, 1, 2, 2, 59.123419))
sketch17.addConstraint(Sketcher.Constraint("DistanceX", -1, 1, 10, 3, 37.46))
sketch17.addConstraint(Sketcher.Constraint("DistanceY", 1, 3, 10, 1, 2.730802))
sketch17.addConstraint(Sketcher.Constraint("DistanceY", 16, 1, 7, 2, 5.270802))
sketch17.addConstraint(Sketcher.Constraint("DistanceX", 0, 1, 0, 2, 86.856945))
pad8 = body.newObject("PartDesign::Pad", "Pad007")
pad8.Profile = sketch17
pad8.Length = Q("0.1 in")

doc.recompute()
